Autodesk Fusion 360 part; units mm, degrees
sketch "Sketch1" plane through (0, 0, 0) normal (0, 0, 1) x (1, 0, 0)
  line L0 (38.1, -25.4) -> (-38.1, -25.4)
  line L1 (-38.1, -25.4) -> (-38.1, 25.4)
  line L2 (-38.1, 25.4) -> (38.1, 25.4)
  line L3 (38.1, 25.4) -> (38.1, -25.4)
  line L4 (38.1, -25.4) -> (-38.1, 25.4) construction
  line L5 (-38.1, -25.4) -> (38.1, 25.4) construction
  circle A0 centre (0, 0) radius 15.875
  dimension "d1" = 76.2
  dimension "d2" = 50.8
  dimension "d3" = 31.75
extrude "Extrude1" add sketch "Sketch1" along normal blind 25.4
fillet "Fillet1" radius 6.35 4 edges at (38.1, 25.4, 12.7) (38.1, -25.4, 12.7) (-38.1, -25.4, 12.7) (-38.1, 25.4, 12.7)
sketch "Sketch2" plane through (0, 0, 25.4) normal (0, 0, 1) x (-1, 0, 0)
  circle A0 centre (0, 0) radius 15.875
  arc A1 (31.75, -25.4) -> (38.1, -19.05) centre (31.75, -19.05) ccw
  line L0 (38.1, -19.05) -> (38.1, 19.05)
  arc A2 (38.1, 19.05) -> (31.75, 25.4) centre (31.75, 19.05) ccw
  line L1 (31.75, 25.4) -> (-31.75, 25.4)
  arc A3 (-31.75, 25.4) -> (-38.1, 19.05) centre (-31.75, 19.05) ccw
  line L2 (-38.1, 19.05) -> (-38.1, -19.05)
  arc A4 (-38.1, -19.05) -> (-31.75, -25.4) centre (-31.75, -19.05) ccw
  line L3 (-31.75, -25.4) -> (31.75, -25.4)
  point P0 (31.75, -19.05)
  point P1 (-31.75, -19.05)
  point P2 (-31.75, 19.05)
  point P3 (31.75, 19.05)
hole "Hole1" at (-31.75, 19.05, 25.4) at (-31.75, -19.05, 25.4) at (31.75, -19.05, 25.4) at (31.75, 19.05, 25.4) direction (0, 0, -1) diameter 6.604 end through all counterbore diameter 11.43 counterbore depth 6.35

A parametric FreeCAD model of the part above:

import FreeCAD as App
import Part
import Sketcher
Q = App.Units.Quantity


def edges_at(feature, points):
    """Names of the edges that pass closest to the given points."""
    edges = feature.Shape.Edges
    near = lambda p: min(range(len(edges)), key=lambda i: edges[i].distToShape(Part.Vertex(*p))[0])
    return sorted({f"Edge{near(p) + 1}" for p in points})

doc = App.newDocument("Part")
body = doc.addObject("PartDesign::Body", "Body")

sketch1 = body.newObject("Sketcher::SketchObject", "Sketch")
sketch1.AttachmentSupport = (doc.getObject("XY_Plane"), [""])
sketch1.MapMode = "FlatFace"
sketch1.addGeometry([
    Part.LineSegment(App.Vector(-38, -25, 0), App.Vector(38, -25, 0)),
    Part.LineSegment(App.Vector(38, -25, 0), App.Vector(38, 25, 0)),
    Part.LineSegment(App.Vector(38, 25, 0), App.Vector(-38, 25, 0)),
    Part.LineSegment(App.Vector(-38, 25, 0), App.Vector(-38, -25, 0)),
    Part.Circle(App.Vector(0, 0, 0), App.Vector(0, 0, 1), 16),
], False)
sketch1.addConstraint([
    Sketcher.Constraint("Coincident", 0, 2, 1, 1),
    Sketcher.Constraint("Coincident", 1, 2, 2, 1),
    Sketcher.Constraint("Coincident", 2, 2, 3, 1),
    Sketcher.Constraint("Coincident", 3, 2, 0, 1),
    Sketcher.Constraint("Horizontal", 0),
    Sketcher.Constraint("Vertical", 1),
    Sketcher.Constraint("Horizontal", 2),
    Sketcher.Constraint("Vertical", 3),
    Sketcher.Constraint("Coincident", 4, 3, -1, 1),
    Sketcher.Constraint("Symmetric", 0, 2, 2, 2, -1, 1),
    Sketcher.Constraint("Diameter", 4, Q("1.25 in")),
    Sketcher.Constraint("DistanceX", 0, 1, 0, 2, Q("3 in")),
    Sketcher.Constraint("DistanceY", 1, 1, 1, 2, Q("2 in")),
])
pad1 = body.newObject("PartDesign::Pad", "Pad")
pad1.Profile = sketch1
pad1.Length = Q("1 in")
doc.recompute()

fillet = body.newObject("PartDesign::Fillet", "Fillet")
fillet.Base = (pad1, edges_at(pad1, [
    (38.1, 25.4, 12.7),
    (38.1, -25.4, 12.7),
    (-38.1, -25.4, 12.7),
    (-38.1, 25.4, 12.7),
]))
fillet.Radius = Q("0.25 in")

sketch2 = body.newObject("Sketcher::SketchObject", "Sketch001")
sketch2.AttachmentSupport = (doc.getObject("XY_Plane"), [""])
sketch2.MapMode = "FlatFace"
sketch2.AttachmentOffset = App.Placement(App.Vector(0, 0, 1 * 25.4), App.Rotation())
sketch2.addGeometry([
    Part.Circle(App.Vector(-31.8, 19.1, 0), App.Vector(0, 0, 1), 3.3),
    Part.Circle(App.Vector(-31.8, -19.1, 0), App.Vector(0, 0, 1), 3.3),
    Part.Circle(App.Vector(31.8, -19.1, 0), App.Vector(0, 0, 1), 3.3),
    Part.Circle(App.Vector(31.8, 19.1, 0), App.Vector(0, 0, 1), 3.3),
], False)
sketch2.addConstraint([
    Sketcher.Constraint("Equal", 0, 1),
    Sketcher.Constraint("Equal", 1, 2),
    Sketcher.Constraint("Equal", 2, 3),
    Sketcher.Constraint("Symmetric", 0, 3, 2, 3, -1, 1),
    Sketcher.Constraint("Symmetric", 1, 3, 3, 3, -1, 1),
    Sketcher.Constraint("Symmetric", 1, 3, 2, 3, -2),
    Sketcher.Constraint("Diameter", 0, Q("0.26 in")),
    Sketcher.Constraint("DistanceY", 1, 3, 0, 3, Q("1.5 in")),
    Sketcher.Constraint("DistanceX", 1, 3, 2, 3, Q("2.5 in")),
])
doc.recompute()
hole = body.newObject("PartDesign::Hole", "Hole")
hole.Profile = sketch2
hole.ThreadType = "None"
hole.Diameter = Q("0.26 in")
hole.DepthType = "ThroughAll"
hole.HoleCutType = "Counterbore"
hole.HoleCutDiameter = Q("0.45 in")
hole.HoleCutDepth = Q("0.25 in")

doc.recompute()
